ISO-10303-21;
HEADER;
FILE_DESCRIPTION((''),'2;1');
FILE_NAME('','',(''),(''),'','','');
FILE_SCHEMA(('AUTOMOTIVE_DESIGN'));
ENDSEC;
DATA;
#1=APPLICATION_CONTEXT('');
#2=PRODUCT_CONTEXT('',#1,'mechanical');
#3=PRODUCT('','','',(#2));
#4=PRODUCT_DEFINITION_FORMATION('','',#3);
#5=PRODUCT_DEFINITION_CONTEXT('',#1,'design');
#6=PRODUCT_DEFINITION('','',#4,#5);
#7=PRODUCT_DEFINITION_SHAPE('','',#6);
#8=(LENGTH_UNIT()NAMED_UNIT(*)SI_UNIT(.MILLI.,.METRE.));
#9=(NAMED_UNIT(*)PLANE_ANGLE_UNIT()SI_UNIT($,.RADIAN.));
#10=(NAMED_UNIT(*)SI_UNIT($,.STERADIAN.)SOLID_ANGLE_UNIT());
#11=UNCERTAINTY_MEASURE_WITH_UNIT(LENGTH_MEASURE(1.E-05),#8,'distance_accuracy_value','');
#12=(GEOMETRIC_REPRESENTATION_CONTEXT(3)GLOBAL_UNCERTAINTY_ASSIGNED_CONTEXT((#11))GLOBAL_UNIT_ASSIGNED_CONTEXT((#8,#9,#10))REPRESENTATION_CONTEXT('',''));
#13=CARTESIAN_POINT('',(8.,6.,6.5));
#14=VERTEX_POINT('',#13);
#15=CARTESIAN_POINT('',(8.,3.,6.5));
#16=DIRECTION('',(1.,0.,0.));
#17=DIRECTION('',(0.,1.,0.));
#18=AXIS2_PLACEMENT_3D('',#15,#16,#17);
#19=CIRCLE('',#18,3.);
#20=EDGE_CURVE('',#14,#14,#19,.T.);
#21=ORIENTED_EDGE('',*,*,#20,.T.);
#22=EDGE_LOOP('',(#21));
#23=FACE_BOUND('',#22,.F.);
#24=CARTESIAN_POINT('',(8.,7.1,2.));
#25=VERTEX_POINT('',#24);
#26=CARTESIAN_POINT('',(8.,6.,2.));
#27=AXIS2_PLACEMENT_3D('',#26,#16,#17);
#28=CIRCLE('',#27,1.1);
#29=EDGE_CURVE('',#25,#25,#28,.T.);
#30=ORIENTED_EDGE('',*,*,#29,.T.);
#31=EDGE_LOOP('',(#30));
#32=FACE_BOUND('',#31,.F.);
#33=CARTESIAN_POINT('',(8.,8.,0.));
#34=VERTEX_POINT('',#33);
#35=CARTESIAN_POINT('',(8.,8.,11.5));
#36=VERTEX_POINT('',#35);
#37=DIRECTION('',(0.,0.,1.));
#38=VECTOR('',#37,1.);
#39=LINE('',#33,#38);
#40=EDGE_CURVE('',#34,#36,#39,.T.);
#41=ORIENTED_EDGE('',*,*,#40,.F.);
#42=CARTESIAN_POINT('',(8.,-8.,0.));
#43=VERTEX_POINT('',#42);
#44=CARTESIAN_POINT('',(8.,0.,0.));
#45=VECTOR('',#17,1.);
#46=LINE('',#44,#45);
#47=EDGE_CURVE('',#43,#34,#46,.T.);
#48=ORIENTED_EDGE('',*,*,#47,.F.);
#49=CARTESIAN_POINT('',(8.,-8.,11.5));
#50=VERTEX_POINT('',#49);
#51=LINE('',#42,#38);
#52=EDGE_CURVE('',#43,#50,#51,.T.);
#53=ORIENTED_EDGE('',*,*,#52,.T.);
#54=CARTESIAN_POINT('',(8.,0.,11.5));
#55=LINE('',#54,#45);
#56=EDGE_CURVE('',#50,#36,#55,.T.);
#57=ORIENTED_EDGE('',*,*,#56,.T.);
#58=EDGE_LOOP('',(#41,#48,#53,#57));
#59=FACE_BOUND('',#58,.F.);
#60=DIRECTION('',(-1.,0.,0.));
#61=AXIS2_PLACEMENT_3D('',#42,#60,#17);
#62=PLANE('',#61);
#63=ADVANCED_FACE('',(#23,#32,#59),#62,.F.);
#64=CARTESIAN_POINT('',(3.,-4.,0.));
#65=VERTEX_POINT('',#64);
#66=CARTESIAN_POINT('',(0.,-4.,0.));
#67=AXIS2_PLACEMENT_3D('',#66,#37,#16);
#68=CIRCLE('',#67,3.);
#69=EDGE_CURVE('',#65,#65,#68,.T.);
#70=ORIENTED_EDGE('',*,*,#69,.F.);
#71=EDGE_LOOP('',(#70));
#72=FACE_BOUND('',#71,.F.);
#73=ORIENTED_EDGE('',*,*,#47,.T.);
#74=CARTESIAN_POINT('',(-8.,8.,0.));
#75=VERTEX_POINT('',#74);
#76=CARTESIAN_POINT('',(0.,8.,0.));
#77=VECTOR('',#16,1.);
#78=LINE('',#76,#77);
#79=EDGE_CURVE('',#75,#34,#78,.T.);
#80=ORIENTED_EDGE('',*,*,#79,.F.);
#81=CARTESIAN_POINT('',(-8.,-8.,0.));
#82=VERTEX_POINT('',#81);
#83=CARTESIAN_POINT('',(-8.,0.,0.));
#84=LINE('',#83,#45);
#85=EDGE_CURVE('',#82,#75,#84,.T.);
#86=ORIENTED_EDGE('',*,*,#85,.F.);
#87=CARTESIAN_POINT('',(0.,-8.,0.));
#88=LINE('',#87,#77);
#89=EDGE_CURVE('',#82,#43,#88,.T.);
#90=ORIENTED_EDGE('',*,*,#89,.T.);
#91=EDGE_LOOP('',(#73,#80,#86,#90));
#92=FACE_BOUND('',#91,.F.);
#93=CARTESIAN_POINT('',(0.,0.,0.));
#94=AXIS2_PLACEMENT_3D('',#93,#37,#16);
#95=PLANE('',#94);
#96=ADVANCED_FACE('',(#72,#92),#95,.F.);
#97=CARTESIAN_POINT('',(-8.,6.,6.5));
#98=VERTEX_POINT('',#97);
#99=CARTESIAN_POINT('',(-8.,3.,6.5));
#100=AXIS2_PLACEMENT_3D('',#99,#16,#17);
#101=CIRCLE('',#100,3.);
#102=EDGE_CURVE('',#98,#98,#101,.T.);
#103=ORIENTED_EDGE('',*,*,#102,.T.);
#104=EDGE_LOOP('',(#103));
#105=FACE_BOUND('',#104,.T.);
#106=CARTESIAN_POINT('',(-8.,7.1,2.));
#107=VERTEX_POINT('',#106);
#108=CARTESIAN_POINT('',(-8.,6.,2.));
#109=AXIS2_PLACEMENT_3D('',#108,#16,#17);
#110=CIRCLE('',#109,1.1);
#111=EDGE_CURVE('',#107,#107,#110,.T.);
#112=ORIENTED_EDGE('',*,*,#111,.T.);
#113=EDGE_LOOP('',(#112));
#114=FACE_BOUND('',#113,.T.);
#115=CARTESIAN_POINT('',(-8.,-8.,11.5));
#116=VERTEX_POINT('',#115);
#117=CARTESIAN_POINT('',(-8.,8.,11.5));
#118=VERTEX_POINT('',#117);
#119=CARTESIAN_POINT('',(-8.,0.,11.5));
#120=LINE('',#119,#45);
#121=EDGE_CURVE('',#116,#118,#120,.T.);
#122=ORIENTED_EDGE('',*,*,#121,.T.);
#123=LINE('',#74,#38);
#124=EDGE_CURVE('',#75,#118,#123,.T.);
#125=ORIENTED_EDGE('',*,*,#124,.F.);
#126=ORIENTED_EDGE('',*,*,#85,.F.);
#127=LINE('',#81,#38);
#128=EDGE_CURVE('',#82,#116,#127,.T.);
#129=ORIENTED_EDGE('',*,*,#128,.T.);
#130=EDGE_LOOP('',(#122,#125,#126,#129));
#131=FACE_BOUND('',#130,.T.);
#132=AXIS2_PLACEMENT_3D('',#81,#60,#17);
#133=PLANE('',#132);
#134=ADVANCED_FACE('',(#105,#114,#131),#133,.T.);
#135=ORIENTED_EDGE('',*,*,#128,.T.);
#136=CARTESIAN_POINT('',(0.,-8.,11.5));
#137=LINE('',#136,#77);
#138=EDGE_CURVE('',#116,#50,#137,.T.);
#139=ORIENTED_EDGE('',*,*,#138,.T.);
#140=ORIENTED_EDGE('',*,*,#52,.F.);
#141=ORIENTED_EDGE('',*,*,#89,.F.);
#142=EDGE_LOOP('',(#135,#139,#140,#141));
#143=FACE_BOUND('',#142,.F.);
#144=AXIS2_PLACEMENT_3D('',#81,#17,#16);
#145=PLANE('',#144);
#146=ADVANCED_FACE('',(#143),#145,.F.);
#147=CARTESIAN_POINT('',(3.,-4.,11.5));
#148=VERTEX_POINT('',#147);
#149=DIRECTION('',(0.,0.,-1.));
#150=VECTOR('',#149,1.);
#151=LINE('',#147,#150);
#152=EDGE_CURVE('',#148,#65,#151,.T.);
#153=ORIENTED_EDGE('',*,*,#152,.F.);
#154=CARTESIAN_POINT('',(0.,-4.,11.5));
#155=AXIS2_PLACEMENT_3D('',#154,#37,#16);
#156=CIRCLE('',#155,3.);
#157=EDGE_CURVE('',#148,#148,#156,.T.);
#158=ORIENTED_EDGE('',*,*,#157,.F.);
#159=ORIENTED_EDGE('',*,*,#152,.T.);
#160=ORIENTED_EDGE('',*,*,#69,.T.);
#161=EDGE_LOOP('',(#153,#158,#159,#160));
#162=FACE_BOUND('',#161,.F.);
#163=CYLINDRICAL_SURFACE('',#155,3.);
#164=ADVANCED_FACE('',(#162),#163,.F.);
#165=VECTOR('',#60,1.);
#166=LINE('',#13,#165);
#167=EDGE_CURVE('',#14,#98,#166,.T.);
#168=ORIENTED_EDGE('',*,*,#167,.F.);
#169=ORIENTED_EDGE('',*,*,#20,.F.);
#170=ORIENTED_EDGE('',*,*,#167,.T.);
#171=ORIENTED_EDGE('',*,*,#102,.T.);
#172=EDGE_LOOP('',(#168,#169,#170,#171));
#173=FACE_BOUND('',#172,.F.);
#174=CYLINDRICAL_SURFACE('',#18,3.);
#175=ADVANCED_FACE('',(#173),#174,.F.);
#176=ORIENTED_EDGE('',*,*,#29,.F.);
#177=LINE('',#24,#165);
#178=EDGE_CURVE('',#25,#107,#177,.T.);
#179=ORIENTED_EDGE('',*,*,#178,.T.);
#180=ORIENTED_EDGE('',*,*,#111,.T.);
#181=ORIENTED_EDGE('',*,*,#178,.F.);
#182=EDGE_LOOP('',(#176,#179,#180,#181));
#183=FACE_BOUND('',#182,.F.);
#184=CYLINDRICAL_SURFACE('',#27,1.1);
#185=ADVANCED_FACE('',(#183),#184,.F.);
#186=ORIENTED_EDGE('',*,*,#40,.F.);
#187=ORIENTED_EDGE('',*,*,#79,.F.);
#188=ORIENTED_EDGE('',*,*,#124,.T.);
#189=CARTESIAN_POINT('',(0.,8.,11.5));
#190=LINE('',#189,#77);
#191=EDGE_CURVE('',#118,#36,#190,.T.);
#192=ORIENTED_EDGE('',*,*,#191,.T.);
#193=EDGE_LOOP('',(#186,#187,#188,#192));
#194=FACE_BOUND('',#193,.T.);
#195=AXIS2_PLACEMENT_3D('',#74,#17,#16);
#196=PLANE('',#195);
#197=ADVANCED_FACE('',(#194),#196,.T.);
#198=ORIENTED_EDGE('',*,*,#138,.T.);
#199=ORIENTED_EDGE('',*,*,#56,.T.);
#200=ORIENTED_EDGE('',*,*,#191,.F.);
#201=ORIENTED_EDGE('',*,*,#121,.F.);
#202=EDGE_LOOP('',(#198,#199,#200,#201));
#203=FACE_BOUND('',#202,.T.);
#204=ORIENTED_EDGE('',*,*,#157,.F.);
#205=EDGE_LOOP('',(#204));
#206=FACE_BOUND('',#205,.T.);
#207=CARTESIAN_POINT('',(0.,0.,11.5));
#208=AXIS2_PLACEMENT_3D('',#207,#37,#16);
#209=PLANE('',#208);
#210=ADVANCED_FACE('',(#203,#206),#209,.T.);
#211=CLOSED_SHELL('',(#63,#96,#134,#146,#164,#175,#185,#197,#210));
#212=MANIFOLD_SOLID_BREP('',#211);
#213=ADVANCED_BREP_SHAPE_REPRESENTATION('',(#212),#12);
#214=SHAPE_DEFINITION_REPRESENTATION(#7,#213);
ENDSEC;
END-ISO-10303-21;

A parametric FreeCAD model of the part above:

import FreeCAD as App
import Part
import Sketcher
Q = App.Units.Quantity


def add_polygon(sketch, points):
    """Adds a closed chain of lines whose ends are joined by coincident constraints."""
    first, n = sketch.GeometryCount, len(points)
    for a, b in zip(points, points[1:] + points[:1]):
        sketch.addGeometry(Part.LineSegment(App.Vector(*a, 0), App.Vector(*b, 0)), False)
    for i in range(n):
        sketch.addConstraint(Sketcher.Constraint("Coincident", first + i, 2, first + (i + 1) % n, 1))

doc = App.newDocument("Part")
params = doc.addObject("Spreadsheet::Sheet", "Params")
for row, (alias, value) in enumerate([
    ("sketch1_width", "16 mm"),
    ("pad1_length", "11.5 mm"),
    ("sketch2_diameter", "6 mm"),
    ("pocket1_length", "25 mm"),
    ("sketch3_diameter", "6 mm"),
    ("sketch3_diameter2", "2.2 mm"),
], start=1):
    params.set(f"A{row}", alias)
    params.set(f"B{row}", "=" + value)
    params.setAlias(f"B{row}", alias)

body = doc.addObject("PartDesign::Body", "Body")

# Sketch on XY plane
sketch1 = body.newObject("Sketcher::SketchObject", "Sketch")
sketch1.AttachmentSupport = (doc.getObject("XY_Plane"), [""])
sketch1.MapMode = "FlatFace"
add_polygon(sketch1, [(-8, 8), (-8, -8), (8, -8), (8, 8)])  # lines 0-3
sketch1.addConstraint([
    Sketcher.Constraint("Vertical", 0),
    Sketcher.Constraint("Horizontal", 1),
    Sketcher.Constraint("Vertical", 2),
    Sketcher.Constraint("Horizontal", 3),
    Sketcher.Constraint("Symmetric", 0, 2, 2, 2, -1, 1),
    Sketcher.Constraint("Equal", 3, 0),
    Sketcher.Constraint("DistanceX", 1, 1, 1, 2, Q("16 mm")),
])
sketch1.setExpression("Constraints[10]", "Params.sketch1_width")
pad1 = body.newObject("PartDesign::Pad", "Pad")
pad1.Profile = sketch1
pad1.setExpression("Length", "Params.pad1_length")

# Sketch on XY plane
sketch2 = body.newObject("Sketcher::SketchObject", "Sketch001")
sketch2.AttachmentSupport = (doc.getObject("XY_Plane"), [""])
sketch2.MapMode = "FlatFace"
sketch2.AttachmentOffset = App.Placement(App.Vector(0, 0, 11.5), App.Rotation())
sketch2.addGeometry(Part.Circle(App.Vector(0, -4, 0), App.Vector(0, 0, 1), 3), False)
sketch2.addConstraint([
    Sketcher.Constraint("PointOnObject", 0, 3, -2),
    Sketcher.Constraint("Diameter", 0, Q("6 mm")),
    Sketcher.Constraint("DistanceY", 0, 3, -1, 1, Q("4 mm")),
])
sketch2.setExpression("Constraints[1]", "Params.sketch2_diameter")
pocket1 = body.newObject("PartDesign::Pocket", "Pocket")
pocket1.Profile = sketch2
pocket1.setExpression("Length", "Params.pocket1_length")

# Sketch on YZ plane
sketch3 = body.newObject("Sketcher::SketchObject", "Sketch002")
sketch3.AttachmentSupport = (doc.getObject("YZ_Plane"), [""])
sketch3.MapMode = "FlatFace"
sketch3.AttachmentOffset = App.Placement(App.Vector(0, 0, 8), App.Rotation())
sketch3.addGeometry([
    Part.Circle(App.Vector(3, 6.5, 0), App.Vector(0, 0, 1), 3),
    Part.Circle(App.Vector(6, 2, 0), App.Vector(0, 0, 1), 1.1),
], False)
sketch3.addConstraint([
    Sketcher.Constraint("Diameter", 0, Q("6 mm")),
    Sketcher.Constraint("Diameter", 1, Q("2.2 mm")),
    Sketcher.Constraint("DistanceX", -1, 1, 0, 3, Q("3 mm")),
    Sketcher.Constraint("DistanceX", -1, 1, 1, 3, Q("6 mm")),
    Sketcher.Constraint("DistanceY", -1, 1, 1, 3, Q("2 mm")),
    Sketcher.Constraint("DistanceY", -1, 1, 0, 3, Q("6.5 mm")),
])
sketch3.setExpression("Constraints[0]", "Params.sketch3_diameter")
sketch3.setExpression("Constraints[1]", "Params.sketch3_diameter2")
pocket2 = body.newObject("PartDesign::Pocket", "Pocket001")
pocket2.Profile = sketch3
pocket2.Type = "ThroughAll"

doc.recompute()
